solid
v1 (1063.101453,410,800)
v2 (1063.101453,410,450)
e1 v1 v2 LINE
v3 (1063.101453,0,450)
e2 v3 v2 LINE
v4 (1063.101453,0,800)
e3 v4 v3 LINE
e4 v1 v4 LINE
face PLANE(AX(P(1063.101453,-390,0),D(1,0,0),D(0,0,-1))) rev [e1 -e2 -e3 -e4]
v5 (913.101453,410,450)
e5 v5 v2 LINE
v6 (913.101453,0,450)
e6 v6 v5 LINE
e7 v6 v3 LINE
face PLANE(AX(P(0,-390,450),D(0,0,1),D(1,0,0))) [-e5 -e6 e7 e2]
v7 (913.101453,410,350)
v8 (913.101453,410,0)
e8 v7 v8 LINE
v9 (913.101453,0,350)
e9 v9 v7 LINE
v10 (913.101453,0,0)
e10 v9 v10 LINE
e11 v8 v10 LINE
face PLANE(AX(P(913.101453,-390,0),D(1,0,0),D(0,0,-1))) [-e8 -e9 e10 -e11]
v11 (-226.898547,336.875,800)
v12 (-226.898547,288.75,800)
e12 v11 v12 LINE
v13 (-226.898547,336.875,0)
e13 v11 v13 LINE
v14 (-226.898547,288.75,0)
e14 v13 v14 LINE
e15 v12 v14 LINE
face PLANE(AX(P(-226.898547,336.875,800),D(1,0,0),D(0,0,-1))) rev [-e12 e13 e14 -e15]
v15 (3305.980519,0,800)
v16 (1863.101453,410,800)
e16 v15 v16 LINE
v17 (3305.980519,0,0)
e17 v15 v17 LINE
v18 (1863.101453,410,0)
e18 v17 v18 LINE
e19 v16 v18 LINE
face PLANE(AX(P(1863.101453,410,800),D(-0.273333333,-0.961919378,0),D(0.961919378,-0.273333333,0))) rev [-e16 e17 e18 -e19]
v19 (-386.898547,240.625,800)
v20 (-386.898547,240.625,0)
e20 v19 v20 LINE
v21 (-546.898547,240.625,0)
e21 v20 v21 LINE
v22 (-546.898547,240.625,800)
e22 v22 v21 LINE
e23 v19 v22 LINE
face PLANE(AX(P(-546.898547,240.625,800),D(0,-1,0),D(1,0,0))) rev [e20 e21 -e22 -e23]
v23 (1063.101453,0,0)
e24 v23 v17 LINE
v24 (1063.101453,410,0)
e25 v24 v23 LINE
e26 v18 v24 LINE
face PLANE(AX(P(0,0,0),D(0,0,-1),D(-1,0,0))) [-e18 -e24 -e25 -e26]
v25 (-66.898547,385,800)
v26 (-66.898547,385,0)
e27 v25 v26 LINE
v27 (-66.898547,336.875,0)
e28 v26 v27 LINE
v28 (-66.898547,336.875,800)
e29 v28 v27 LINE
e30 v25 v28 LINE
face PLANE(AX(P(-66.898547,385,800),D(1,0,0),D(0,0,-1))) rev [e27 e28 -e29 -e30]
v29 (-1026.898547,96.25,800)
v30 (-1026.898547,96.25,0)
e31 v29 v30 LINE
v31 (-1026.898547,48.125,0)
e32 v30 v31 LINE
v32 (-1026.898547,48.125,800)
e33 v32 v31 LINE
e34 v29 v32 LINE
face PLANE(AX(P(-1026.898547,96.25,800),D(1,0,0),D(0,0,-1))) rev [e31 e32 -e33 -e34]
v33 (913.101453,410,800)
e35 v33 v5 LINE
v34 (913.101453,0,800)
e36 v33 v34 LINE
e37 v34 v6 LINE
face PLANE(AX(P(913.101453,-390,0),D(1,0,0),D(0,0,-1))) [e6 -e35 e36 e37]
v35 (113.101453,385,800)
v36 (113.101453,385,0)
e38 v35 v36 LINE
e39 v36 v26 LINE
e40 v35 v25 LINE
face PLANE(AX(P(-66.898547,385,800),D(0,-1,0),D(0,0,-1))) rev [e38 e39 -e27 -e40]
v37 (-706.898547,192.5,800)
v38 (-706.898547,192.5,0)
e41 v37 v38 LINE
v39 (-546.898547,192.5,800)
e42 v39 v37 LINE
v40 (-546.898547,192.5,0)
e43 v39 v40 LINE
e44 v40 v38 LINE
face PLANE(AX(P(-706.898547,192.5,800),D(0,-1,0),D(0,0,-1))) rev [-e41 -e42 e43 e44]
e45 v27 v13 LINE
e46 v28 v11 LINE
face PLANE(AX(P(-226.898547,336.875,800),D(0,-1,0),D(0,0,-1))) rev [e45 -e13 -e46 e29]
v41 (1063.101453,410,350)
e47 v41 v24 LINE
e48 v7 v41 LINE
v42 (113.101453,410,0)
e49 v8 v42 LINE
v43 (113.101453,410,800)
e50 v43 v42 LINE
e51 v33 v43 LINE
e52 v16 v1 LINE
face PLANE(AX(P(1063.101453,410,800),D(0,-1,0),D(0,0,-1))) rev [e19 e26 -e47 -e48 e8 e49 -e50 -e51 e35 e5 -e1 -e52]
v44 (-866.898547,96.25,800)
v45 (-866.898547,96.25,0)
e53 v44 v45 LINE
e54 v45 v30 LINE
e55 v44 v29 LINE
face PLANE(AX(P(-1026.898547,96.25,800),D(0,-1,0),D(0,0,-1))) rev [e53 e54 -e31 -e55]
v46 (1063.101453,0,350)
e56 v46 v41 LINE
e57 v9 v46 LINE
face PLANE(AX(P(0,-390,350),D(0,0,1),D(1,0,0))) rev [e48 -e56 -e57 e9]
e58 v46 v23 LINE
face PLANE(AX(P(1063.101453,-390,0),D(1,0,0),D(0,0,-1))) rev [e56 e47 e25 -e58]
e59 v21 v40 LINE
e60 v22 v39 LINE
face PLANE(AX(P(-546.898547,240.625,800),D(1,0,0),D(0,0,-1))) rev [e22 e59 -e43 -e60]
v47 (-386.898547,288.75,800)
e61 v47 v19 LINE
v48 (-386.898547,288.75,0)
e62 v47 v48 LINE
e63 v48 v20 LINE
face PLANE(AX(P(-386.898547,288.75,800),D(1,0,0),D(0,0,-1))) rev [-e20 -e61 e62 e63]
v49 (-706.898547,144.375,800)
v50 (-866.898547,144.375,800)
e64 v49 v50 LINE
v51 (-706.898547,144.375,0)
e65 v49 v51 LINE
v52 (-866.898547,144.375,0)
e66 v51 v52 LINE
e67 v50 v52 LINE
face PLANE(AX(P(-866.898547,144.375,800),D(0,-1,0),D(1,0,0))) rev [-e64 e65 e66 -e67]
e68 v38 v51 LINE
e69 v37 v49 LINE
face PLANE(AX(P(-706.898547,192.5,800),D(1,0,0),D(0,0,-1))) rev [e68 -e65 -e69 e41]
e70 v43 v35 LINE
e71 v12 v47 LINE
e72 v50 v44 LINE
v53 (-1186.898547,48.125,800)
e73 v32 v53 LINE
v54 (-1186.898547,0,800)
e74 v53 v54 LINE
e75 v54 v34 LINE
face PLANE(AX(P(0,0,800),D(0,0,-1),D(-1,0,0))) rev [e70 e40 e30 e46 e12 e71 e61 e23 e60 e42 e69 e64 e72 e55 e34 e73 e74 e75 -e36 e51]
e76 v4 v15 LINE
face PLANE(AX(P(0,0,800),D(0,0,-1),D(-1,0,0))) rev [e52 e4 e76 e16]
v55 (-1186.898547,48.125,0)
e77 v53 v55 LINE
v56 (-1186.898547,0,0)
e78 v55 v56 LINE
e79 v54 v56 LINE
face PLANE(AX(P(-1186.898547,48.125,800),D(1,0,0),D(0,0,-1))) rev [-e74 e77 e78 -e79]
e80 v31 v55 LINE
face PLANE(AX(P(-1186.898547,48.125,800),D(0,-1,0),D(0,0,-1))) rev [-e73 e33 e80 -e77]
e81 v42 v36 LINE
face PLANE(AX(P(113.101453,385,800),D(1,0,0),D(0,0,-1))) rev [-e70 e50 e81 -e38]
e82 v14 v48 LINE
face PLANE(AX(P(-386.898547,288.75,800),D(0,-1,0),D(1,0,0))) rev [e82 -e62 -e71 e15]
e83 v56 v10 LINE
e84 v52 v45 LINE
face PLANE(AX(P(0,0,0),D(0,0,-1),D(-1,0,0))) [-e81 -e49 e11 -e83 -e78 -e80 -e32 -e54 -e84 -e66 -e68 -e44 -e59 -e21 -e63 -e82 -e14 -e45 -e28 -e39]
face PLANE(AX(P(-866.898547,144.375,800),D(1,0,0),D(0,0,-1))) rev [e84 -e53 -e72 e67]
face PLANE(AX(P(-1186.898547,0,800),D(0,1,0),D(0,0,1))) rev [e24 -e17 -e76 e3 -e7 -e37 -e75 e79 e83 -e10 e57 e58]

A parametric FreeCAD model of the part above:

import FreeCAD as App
import Part
import Sketcher

V = App.Vector


def add_polygon(sketch, points):
    """Adds a closed chain of lines whose ends are joined by coincident constraints."""
    first, n = sketch.GeometryCount, len(points)
    for a, b in zip(points, points[1:] + points[:1]):
        sketch.addGeometry(Part.LineSegment(App.Vector(*a, 0), App.Vector(*b, 0)), False)
    for i in range(n):
        sketch.addConstraint(Sketcher.Constraint("Coincident", first + i, 2, first + (i + 1) % n, 1))

doc = App.newDocument("Part")
body = doc.addObject("PartDesign::Body", "Body")

# Sketch on XY plane
sketch1 = body.newObject("Sketcher::SketchObject", "Sketch")
sketch1.AttachmentSupport = (doc.getObject("XY_Plane"), [""])
sketch1.MapMode = "FlatFace"
add_polygon(sketch1, [(-1027, 48), (-1187, 48), (-1187, 0), (3306, 0), (1863, 410), (113, 410), (113, 385), (-67, 385), (-67, 337), (-227, 337), (-227, 289), (-387, 289), (-387, 241), (-547, 241), (-547, 192), (-707, 192), (-707, 144), (-867, 144), (-867, 96), (-1027, 96)])  # lines 0-19
sketch1.addConstraint([
    Sketcher.Constraint("Horizontal", 0),
    Sketcher.Constraint("Vertical", 1),
    Sketcher.Constraint("Horizontal", 2),
    Sketcher.Constraint("Horizontal", 4),
    Sketcher.Constraint("Vertical", 5),
    Sketcher.Constraint("Horizontal", 6),
    Sketcher.Constraint("Vertical", 7),
    Sketcher.Constraint("Horizontal", 8),
    Sketcher.Constraint("Vertical", 9),
    Sketcher.Constraint("Horizontal", 10),
    Sketcher.Constraint("Vertical", 11),
    Sketcher.Constraint("Horizontal", 12),
    Sketcher.Constraint("Vertical", 13),
    Sketcher.Constraint("Horizontal", 14),
    Sketcher.Constraint("Vertical", 15),
    Sketcher.Constraint("Horizontal", 16),
    Sketcher.Constraint("Vertical", 17),
    Sketcher.Constraint("Horizontal", 18),
    Sketcher.Constraint("Vertical", 19),
    Sketcher.Constraint("PointOnObject", 1, 2, -1),
    Sketcher.Constraint("Equal", 0, 8),
    Sketcher.Constraint("Equal", 8, 10),
    Sketcher.Constraint("Equal", 10, 12),
    Sketcher.Constraint("Equal", 12, 14),
    Sketcher.Constraint("Equal", 14, 16),
    Sketcher.Constraint("Equal", 16, 18),
    Sketcher.Constraint("Equal", 1, 7),
    Sketcher.Constraint("Equal", 7, 9),
    Sketcher.Constraint("Equal", 9, 11),
    Sketcher.Constraint("Equal", 11, 13),
    Sketcher.Constraint("Equal", 13, 15),
    Sketcher.Constraint("Equal", 15, 17),
    Sketcher.Constraint("Equal", 17, 19),
    Sketcher.Constraint("DistanceX", 0, 2, 0, 1, 160.0),
    Sketcher.Constraint("DistanceX", 4, 2, 4, 1, 1750.0),
    Sketcher.Constraint("DistanceX", 6, 2, 6, 1, 180.0),
    Sketcher.Constraint("DistanceY", 5, 2, 5, 1, 25.0),
    Sketcher.Constraint("Distance", 3, 1500.0),
    Sketcher.Constraint("DistanceY", -1, 1, 3, 2, 410.0),
    Sketcher.Constraint("DistanceX", -1, 1, 2, 2, 3305.980519),
])
pad1 = body.newObject("PartDesign::Pad", "Pad")
pad1.Profile = sketch1
pad1.Length = 800

# Sketch on XZ plane
sketch2 = body.newObject("Sketcher::SketchObject", "Sketch001")
sketch2.AttachmentSupport = (doc.getObject("XZ_Plane"), [""])
sketch2.MapMode = "FlatFace"
sketch2.AttachmentOffset = App.Placement(V(0, 0, -410), App.Rotation())
add_polygon(sketch2, [(913, 0), (913, 350), (1063, 350), (1063, 0)])  # lines 0-3
add_polygon(sketch2, [(913, 450), (913, 800), (1063, 800), (1063, 450)])  # lines 4-7
sketch2.addConstraint([
    Sketcher.Constraint("Vertical", 0),
    Sketcher.Constraint("Horizontal", 1),
    Sketcher.Constraint("Vertical", 2),
    Sketcher.Constraint("Horizontal", 3),
    Sketcher.Constraint("Vertical", 4),
    Sketcher.Constraint("Horizontal", 5),
    Sketcher.Constraint("Vertical", 6),
    Sketcher.Constraint("Horizontal", 7),
    Sketcher.Constraint("PointOnObject", 2, 2, -1),
    Sketcher.Constraint("Vertical", 3, 2, 4, 2),
    Sketcher.Constraint("Vertical", 2, 2, 5, 2),
    Sketcher.Constraint("Equal", 2, 4),
    Sketcher.Constraint("DistanceX", 1, 1, 1, 2, 150.0),
    Sketcher.Constraint("DistanceY", 0, 1, 0, 2, 350.0),
    Sketcher.Constraint("DistanceY", -1, 1, 4, 2, 800.0),
    Sketcher.Constraint("DistanceX", -1, 1, 0, 2, 913.101453),
])
pocket1 = body.newObject("PartDesign::Pocket", "Pocket")
pocket1.Profile = sketch2
pocket1.Length = 800
pocket1.Reversed = True

doc.recompute()
